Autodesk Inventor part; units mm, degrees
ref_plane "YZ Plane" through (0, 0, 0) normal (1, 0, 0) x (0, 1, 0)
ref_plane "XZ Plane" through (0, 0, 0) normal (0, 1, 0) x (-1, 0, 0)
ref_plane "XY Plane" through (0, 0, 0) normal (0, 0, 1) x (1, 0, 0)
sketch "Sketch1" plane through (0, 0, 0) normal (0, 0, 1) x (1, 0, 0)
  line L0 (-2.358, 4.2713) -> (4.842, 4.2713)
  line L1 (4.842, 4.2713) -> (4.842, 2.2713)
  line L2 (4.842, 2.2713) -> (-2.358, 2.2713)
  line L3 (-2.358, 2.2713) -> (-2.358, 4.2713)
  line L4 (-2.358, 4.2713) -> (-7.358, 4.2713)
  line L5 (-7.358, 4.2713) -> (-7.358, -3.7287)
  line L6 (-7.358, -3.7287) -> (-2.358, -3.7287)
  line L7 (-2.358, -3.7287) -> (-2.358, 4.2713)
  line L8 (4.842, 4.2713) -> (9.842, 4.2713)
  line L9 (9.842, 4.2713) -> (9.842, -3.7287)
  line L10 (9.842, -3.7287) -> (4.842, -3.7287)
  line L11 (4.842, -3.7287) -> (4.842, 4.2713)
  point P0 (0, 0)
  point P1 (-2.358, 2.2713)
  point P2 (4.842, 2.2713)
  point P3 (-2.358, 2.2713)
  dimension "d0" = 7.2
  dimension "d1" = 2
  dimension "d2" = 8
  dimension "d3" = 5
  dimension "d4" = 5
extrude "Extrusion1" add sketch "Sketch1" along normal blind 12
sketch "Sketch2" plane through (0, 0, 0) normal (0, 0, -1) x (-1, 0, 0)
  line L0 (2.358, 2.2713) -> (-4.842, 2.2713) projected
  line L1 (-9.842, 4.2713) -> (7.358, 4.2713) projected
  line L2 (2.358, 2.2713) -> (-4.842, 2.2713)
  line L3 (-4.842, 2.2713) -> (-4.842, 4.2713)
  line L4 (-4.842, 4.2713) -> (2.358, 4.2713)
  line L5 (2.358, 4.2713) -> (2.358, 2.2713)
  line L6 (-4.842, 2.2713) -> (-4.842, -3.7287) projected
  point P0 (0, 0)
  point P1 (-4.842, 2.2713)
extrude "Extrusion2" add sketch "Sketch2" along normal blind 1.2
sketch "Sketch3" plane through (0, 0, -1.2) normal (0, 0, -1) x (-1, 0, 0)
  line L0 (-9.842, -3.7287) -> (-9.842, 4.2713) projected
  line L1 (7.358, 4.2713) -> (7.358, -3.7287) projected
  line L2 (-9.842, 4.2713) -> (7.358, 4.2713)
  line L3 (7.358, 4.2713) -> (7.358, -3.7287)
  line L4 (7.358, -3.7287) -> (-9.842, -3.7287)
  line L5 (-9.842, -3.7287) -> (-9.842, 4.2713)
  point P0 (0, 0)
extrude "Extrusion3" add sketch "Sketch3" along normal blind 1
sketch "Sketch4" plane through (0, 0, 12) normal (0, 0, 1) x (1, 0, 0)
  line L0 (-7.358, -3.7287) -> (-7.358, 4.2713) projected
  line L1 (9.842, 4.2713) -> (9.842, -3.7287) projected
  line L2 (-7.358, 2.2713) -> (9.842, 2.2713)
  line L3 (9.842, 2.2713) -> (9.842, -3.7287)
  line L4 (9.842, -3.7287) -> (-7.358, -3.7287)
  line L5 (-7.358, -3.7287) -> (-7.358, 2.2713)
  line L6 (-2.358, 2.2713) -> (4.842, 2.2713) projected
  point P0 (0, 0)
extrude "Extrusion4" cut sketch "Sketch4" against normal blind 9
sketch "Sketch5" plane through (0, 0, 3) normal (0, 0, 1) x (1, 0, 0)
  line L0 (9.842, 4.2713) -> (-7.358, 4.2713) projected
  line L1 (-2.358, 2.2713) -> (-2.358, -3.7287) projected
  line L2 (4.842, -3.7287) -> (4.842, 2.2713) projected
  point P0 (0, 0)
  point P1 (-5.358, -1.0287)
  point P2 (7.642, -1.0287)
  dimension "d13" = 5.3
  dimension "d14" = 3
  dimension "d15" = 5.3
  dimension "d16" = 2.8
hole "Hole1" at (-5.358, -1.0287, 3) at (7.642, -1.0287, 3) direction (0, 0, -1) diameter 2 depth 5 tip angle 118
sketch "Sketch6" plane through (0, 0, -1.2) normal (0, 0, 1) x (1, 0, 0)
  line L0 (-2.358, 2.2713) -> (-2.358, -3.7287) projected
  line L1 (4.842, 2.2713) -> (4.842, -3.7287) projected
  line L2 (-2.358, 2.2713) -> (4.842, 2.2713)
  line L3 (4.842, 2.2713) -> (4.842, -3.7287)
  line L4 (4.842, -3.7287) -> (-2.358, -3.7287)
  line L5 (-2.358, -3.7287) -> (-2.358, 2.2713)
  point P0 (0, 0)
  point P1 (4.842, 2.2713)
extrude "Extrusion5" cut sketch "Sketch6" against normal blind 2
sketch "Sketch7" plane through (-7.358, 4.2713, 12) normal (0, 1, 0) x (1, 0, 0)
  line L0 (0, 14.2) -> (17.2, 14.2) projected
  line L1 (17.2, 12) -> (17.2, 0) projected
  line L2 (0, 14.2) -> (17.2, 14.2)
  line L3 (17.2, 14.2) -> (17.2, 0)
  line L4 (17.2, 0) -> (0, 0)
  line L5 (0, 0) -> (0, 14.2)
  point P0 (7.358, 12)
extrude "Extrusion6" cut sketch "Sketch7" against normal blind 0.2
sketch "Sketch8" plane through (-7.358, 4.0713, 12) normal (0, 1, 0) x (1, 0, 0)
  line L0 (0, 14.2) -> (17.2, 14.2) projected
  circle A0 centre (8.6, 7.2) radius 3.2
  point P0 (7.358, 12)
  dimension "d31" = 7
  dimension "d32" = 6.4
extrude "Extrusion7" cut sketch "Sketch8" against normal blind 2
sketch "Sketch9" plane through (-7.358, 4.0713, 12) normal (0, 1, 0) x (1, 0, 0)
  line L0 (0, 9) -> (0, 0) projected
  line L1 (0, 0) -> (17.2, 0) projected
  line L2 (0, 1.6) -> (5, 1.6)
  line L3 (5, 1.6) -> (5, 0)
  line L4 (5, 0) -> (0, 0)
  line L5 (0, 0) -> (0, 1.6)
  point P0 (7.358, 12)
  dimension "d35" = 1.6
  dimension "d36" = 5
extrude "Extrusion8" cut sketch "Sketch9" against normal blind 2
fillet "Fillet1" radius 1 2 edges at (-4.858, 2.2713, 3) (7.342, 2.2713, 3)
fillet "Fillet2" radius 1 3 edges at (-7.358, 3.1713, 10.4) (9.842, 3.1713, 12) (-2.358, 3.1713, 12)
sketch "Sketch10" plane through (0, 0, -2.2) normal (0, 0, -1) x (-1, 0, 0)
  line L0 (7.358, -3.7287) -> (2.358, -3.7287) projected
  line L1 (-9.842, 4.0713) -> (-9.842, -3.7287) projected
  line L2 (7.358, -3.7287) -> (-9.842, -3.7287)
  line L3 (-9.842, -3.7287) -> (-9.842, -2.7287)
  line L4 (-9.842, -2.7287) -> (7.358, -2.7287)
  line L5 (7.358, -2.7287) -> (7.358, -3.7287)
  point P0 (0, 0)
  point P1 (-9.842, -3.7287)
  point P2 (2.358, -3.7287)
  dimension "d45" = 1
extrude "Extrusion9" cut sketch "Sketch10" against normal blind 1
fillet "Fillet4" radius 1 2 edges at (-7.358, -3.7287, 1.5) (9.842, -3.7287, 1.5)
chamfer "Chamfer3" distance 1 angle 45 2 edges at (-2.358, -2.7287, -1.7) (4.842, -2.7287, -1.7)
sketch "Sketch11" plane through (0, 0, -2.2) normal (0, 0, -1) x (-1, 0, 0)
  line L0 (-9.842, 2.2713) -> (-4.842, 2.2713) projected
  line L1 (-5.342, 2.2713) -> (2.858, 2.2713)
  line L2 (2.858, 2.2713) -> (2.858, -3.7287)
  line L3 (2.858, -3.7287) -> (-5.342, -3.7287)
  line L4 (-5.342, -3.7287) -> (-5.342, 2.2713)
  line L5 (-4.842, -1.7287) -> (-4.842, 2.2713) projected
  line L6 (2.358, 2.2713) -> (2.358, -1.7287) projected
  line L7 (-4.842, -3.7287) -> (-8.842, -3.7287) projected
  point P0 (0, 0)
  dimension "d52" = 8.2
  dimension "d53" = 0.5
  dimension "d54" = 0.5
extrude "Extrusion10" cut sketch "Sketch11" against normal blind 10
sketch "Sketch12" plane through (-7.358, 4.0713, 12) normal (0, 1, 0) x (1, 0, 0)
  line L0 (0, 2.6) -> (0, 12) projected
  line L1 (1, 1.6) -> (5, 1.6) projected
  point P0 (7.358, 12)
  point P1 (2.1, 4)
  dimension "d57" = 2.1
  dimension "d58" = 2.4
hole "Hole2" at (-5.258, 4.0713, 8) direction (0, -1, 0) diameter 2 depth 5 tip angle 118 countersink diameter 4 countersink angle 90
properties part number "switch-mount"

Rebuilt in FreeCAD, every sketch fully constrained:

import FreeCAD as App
import Part
import Sketcher

V = App.Vector
Q = App.Units.Quantity


def edges_at(feature, points):
    """Names of the edges that pass closest to the given points."""
    edges = feature.Shape.Edges
    near = lambda p: min(range(len(edges)), key=lambda i: edges[i].distToShape(Part.Vertex(*p))[0])
    return sorted({f"Edge{near(p) + 1}" for p in points})

doc = App.newDocument("Part")
body = doc.addObject("PartDesign::Body", "Body")

# Sketch on XY plane
sketch1 = doc.addObject("Sketcher::SketchObject", "Sketch")
body.addObject(sketch1)
sketch1.AttachmentSupport = (doc.XY_Plane, [""])
sketch1.MapMode = "FlatFace"
sketch1.addGeometry(Part.LineSegment(V(-7, 4, 0), V(-7, -4, 0)), False)
sketch1.addGeometry(Part.LineSegment(V(-7, -4, 0), V(-2, -4, 0)), False)
sketch1.addGeometry(Part.LineSegment(V(-2, -4, 0), V(-2, 2, 0)), False)
sketch1.addGeometry(Part.LineSegment(V(-2, 2, 0), V(5, 2, 0)), False)
sketch1.addGeometry(Part.LineSegment(V(5, 2, 0), V(5, -4, 0)), False)
sketch1.addGeometry(Part.LineSegment(V(5, -4, 0), V(10, -4, 0)), False)
sketch1.addGeometry(Part.LineSegment(V(10, -4, 0), V(10, 4, 0)), False)
sketch1.addGeometry(Part.LineSegment(V(10, 4, 0), V(-7, 4, 0)), False)
sketch1.addConstraint(Sketcher.Constraint("Coincident", 0, 2, 1, 1))
sketch1.addConstraint(Sketcher.Constraint("Coincident", 1, 2, 2, 1))
sketch1.addConstraint(Sketcher.Constraint("Coincident", 2, 2, 3, 1))
sketch1.addConstraint(Sketcher.Constraint("Coincident", 3, 2, 4, 1))
sketch1.addConstraint(Sketcher.Constraint("Coincident", 4, 2, 5, 1))
sketch1.addConstraint(Sketcher.Constraint("Coincident", 5, 2, 6, 1))
sketch1.addConstraint(Sketcher.Constraint("Coincident", 6, 2, 7, 1))
sketch1.addConstraint(Sketcher.Constraint("Coincident", 7, 2, 0, 1))
sketch1.addConstraint(Sketcher.Constraint("Vertical", 0))
sketch1.addConstraint(Sketcher.Constraint("Horizontal", 1))
sketch1.addConstraint(Sketcher.Constraint("Vertical", 2))
sketch1.addConstraint(Sketcher.Constraint("Horizontal", 3))
sketch1.addConstraint(Sketcher.Constraint("Vertical", 4))
sketch1.addConstraint(Sketcher.Constraint("Horizontal", 5))
sketch1.addConstraint(Sketcher.Constraint("Vertical", 6))
sketch1.addConstraint(Sketcher.Constraint("Horizontal", 7))
sketch1.addConstraint(Sketcher.Constraint("Horizontal", 1, 2, 4, 2))
sketch1.addConstraint(Sketcher.Constraint("Equal", 1, 5))
sketch1.addConstraint(Sketcher.Constraint("DistanceX", 1, 1, 1, 2, Q("5 mm")))
sketch1.addConstraint(Sketcher.Constraint("DistanceY", 0, 2, 0, 1, Q("8 mm")))
sketch1.addConstraint(Sketcher.Constraint("DistanceX", 3, 1, 3, 2, Q("7.2 mm")))
sketch1.addConstraint(Sketcher.Constraint("DistanceY", 3, 2, 6, 2, Q("2 mm")))
sketch1.addConstraint(Sketcher.Constraint("DistanceX", 0, 2, -1, 1, Q("7.358 mm")))
sketch1.addConstraint(Sketcher.Constraint("DistanceY", 0, 2, -1, 1, Q("3.7287 mm")))
pad1 = doc.addObject("PartDesign::Pad", "Pad")
body.addObject(pad1)
pad1.Profile = sketch1
pad1.Length = 12

# Sketch on XY plane
sketch2 = doc.addObject("Sketcher::SketchObject", "Sketch001")
body.addObject(sketch2)
sketch2.AttachmentSupport = (doc.XY_Plane, [""])
sketch2.MapMode = "FlatFace"
sketch2.addGeometry(Part.LineSegment(V(4.8, 2.3, 0), V(-2.4, 2.3, 0)), False)
sketch2.addGeometry(Part.LineSegment(V(-2.4, 2.3, 0), V(-2.4, 4.3, 0)), False)
sketch2.addGeometry(Part.LineSegment(V(-2.4, 4.3, 0), V(4.8, 4.3, 0)), False)
sketch2.addGeometry(Part.LineSegment(V(4.8, 4.3, 0), V(4.8, 2.3, 0)), False)
sketch2.addConstraint(Sketcher.Constraint("Coincident", 0, 2, 1, 1))
sketch2.addConstraint(Sketcher.Constraint("Coincident", 1, 2, 2, 1))
sketch2.addConstraint(Sketcher.Constraint("Coincident", 2, 2, 3, 1))
sketch2.addConstraint(Sketcher.Constraint("Coincident", 3, 2, 0, 1))
sketch2.addConstraint(Sketcher.Constraint("Horizontal", 0))
sketch2.addConstraint(Sketcher.Constraint("Vertical", 1))
sketch2.addConstraint(Sketcher.Constraint("Horizontal", 2))
sketch2.addConstraint(Sketcher.Constraint("Vertical", 3))
sketch2.addConstraint(Sketcher.Constraint("DistanceY", 1, 1, 1, 2, Q("2 mm")))
sketch2.addConstraint(Sketcher.Constraint("DistanceX", 0, 2, 0, 1, Q("7.2 mm")))
sketch2.addConstraint(Sketcher.Constraint("DistanceX", 0, 2, -1, 1, Q("2.358 mm")))
sketch2.addConstraint(Sketcher.Constraint("DistanceY", -1, 1, 0, 2, Q("2.2713 mm")))
pad2 = doc.addObject("PartDesign::Pad", "Pad001")
body.addObject(pad2)
pad2.Profile = sketch2
pad2.Length = 1.2
pad2.Reversed = True

# Sketch on XY plane
sketch3 = doc.addObject("Sketcher::SketchObject", "Sketch002")
body.addObject(sketch3)
sketch3.AttachmentSupport = (doc.XY_Plane, [""])
sketch3.MapMode = "FlatFace"
sketch3.AttachmentOffset = App.Placement(V(0, 0, -1.2), App.Rotation())
sketch3.addGeometry(Part.LineSegment(V(10, 4, 0), V(10, -4, 0)), False)
sketch3.addGeometry(Part.LineSegment(V(10, -4, 0), V(-7, -4, 0)), False)
sketch3.addGeometry(Part.LineSegment(V(-7, -4, 0), V(-7, 4, 0)), False)
sketch3.addGeometry(Part.LineSegment(V(-7, 4, 0), V(10, 4, 0)), False)
sketch3.addConstraint(Sketcher.Constraint("Coincident", 0, 2, 1, 1))
sketch3.addConstraint(Sketcher.Constraint("Coincident", 1, 2, 2, 1))
sketch3.addConstraint(Sketcher.Constraint("Coincident", 2, 2, 3, 1))
sketch3.addConstraint(Sketcher.Constraint("Coincident", 3, 2, 0, 1))
sketch3.addConstraint(Sketcher.Constraint("Vertical", 0))
sketch3.addConstraint(Sketcher.Constraint("Horizontal", 1))
sketch3.addConstraint(Sketcher.Constraint("Vertical", 2))
sketch3.addConstraint(Sketcher.Constraint("Horizontal", 3))
sketch3.addConstraint(Sketcher.Constraint("DistanceY", 0, 2, 0, 1, Q("8 mm")))
sketch3.addConstraint(Sketcher.Constraint("DistanceX", 1, 2, 1, 1, Q("17.2 mm")))
sketch3.addConstraint(Sketcher.Constraint("DistanceX", -1, 1, 0, 2, Q("9.842 mm")))
sketch3.addConstraint(Sketcher.Constraint("DistanceY", 0, 2, -1, 1, Q("3.7287 mm")))
pad3 = doc.addObject("PartDesign::Pad", "Pad002")
body.addObject(pad3)
pad3.Profile = sketch3
pad3.Length = 1
pad3.Reversed = True

# Sketch on XY plane
sketch4 = doc.addObject("Sketcher::SketchObject", "Sketch003")
body.addObject(sketch4)
sketch4.AttachmentSupport = (doc.XY_Plane, [""])
sketch4.MapMode = "FlatFace"
sketch4.AttachmentOffset = App.Placement(V(0, 0, 12), App.Rotation())
sketch4.addGeometry(Part.LineSegment(V(-7, 2, 0), V(-7, -4, 0)), False)
sketch4.addGeometry(Part.LineSegment(V(-7, -4, 0), V(10, -4, 0)), False)
sketch4.addGeometry(Part.LineSegment(V(10, -4, 0), V(10, 2, 0)), False)
sketch4.addGeometry(Part.LineSegment(V(10, 2, 0), V(-7, 2, 0)), False)
sketch4.addConstraint(Sketcher.Constraint("Coincident", 0, 2, 1, 1))
sketch4.addConstraint(Sketcher.Constraint("Coincident", 1, 2, 2, 1))
sketch4.addConstraint(Sketcher.Constraint("Coincident", 2, 2, 3, 1))
sketch4.addConstraint(Sketcher.Constraint("Coincident", 3, 2, 0, 1))
sketch4.addConstraint(Sketcher.Constraint("Vertical", 0))
sketch4.addConstraint(Sketcher.Constraint("Horizontal", 1))
sketch4.addConstraint(Sketcher.Constraint("Vertical", 2))
sketch4.addConstraint(Sketcher.Constraint("Horizontal", 3))
sketch4.addConstraint(Sketcher.Constraint("DistanceY", 0, 2, 0, 1, Q("6 mm")))
sketch4.addConstraint(Sketcher.Constraint("DistanceX", 1, 1, 1, 2, Q("17.2 mm")))
sketch4.addConstraint(Sketcher.Constraint("DistanceX", 0, 2, -1, 1, Q("7.358 mm")))
sketch4.addConstraint(Sketcher.Constraint("DistanceY", 0, 2, -1, 1, Q("3.7287 mm")))
pocket1 = doc.addObject("PartDesign::Pocket", "Pocket")
body.addObject(pocket1)
pocket1.Profile = sketch4
pocket1.Length = 9

# Sketch on XY plane
sketch5 = doc.addObject("Sketcher::SketchObject", "Sketch004")
body.addObject(sketch5)
sketch5.AttachmentSupport = (doc.XY_Plane, [""])
sketch5.MapMode = "FlatFace"
sketch5.AttachmentOffset = App.Placement(V(0, 0, 3), App.Rotation())
sketch5.addGeometry(Part.Circle(V(-5.4, -1, 0), V(0, 0, 1), 1), False)
sketch5.addGeometry(Part.Circle(V(7.6, -1, 0), V(0, 0, 1), 1), False)
sketch5.addConstraint(Sketcher.Constraint("Equal", 0, 1))
sketch5.addConstraint(Sketcher.Constraint("Horizontal", 0, 3, 1, 3))
sketch5.addConstraint(Sketcher.Constraint("Diameter", 0, Q("2 mm")))
sketch5.addConstraint(Sketcher.Constraint("DistanceX", 0, 3, 1, 3, Q("13 mm")))
sketch5.addConstraint(Sketcher.Constraint("DistanceX", 0, 3, -1, 1, Q("5.358 mm")))
sketch5.addConstraint(Sketcher.Constraint("DistanceY", 0, 3, -1, 1, Q("1.0287 mm")))
doc.recompute()
hole = doc.addObject("PartDesign::Hole", "Hole")
body.addObject(hole)
hole.Profile = sketch5
hole.ThreadType = "None"
hole.Diameter = 2
hole.DepthType = "Dimension"
hole.Depth = 5
hole.DrillPoint = "Angled"
hole.DrillPointAngle = 118

# Sketch on XY plane
sketch6 = doc.addObject("Sketcher::SketchObject", "Sketch005")
body.addObject(sketch6)
sketch6.AttachmentSupport = (doc.XY_Plane, [""])
sketch6.MapMode = "FlatFace"
sketch6.AttachmentOffset = App.Placement(V(0, 0, -1.2), App.Rotation())
sketch6.addGeometry(Part.LineSegment(V(5, 2, 0), V(-2, 2, 0)), False)
sketch6.addGeometry(Part.LineSegment(V(-2, 2, 0), V(-2, -4, 0)), False)
sketch6.addGeometry(Part.LineSegment(V(-2, -4, 0), V(5, -4, 0)), False)
sketch6.addGeometry(Part.LineSegment(V(5, -4, 0), V(5, 2, 0)), False)
sketch6.addConstraint(Sketcher.Constraint("Coincident", 0, 2, 1, 1))
sketch6.addConstraint(Sketcher.Constraint("Coincident", 1, 2, 2, 1))
sketch6.addConstraint(Sketcher.Constraint("Coincident", 2, 2, 3, 1))
sketch6.addConstraint(Sketcher.Constraint("Coincident", 3, 2, 0, 1))
sketch6.addConstraint(Sketcher.Constraint("Horizontal", 0))
sketch6.addConstraint(Sketcher.Constraint("Vertical", 1))
sketch6.addConstraint(Sketcher.Constraint("Horizontal", 2))
sketch6.addConstraint(Sketcher.Constraint("Vertical", 3))
sketch6.addConstraint(Sketcher.Constraint("DistanceY", 1, 2, 1, 1, Q("6 mm")))
sketch6.addConstraint(Sketcher.Constraint("DistanceX", 0, 2, 0, 1, Q("7.2 mm")))
sketch6.addConstraint(Sketcher.Constraint("DistanceX", 0, 2, -1, 1, Q("2.358 mm")))
sketch6.addConstraint(Sketcher.Constraint("DistanceY", -1, 1, 0, 2, Q("2.2713 mm")))
pocket2 = doc.addObject("PartDesign::Pocket", "Pocket001")
body.addObject(pocket2)
pocket2.Profile = sketch6
pocket2.Length = 2

# Sketch on XZ plane
sketch7 = doc.addObject("Sketcher::SketchObject", "Sketch006")
body.addObject(sketch7)
sketch7.AttachmentSupport = (doc.XZ_Plane, [""])
sketch7.MapMode = "FlatFace"
sketch7.AttachmentOffset = App.Placement(V(0, 0, -4.2713), App.Rotation())
sketch7.addGeometry(Part.LineSegment(V(10, -2, 0), V(-7, -2, 0)), False)
sketch7.addGeometry(Part.LineSegment(V(-7, -2, 0), V(-7, 12, 0)), False)
sketch7.addGeometry(Part.LineSegment(V(-7, 12, 0), V(10, 12, 0)), False)
sketch7.addGeometry(Part.LineSegment(V(10, 12, 0), V(10, -2, 0)), False)
sketch7.addConstraint(Sketcher.Constraint("Coincident", 0, 2, 1, 1))
sketch7.addConstraint(Sketcher.Constraint("Coincident", 1, 2, 2, 1))
sketch7.addConstraint(Sketcher.Constraint("Coincident", 2, 2, 3, 1))
sketch7.addConstraint(Sketcher.Constraint("Coincident", 3, 2, 0, 1))
sketch7.addConstraint(Sketcher.Constraint("Horizontal", 0))
sketch7.addConstraint(Sketcher.Constraint("Vertical", 1))
sketch7.addConstraint(Sketcher.Constraint("Horizontal", 2))
sketch7.addConstraint(Sketcher.Constraint("Vertical", 3))
sketch7.addConstraint(Sketcher.Constraint("DistanceX", 0, 2, 0, 1, Q("17.2 mm")))
sketch7.addConstraint(Sketcher.Constraint("DistanceY", 1, 1, 1, 2, Q("14.2 mm")))
sketch7.addConstraint(Sketcher.Constraint("DistanceY", -1, 1, 1, 2, Q("12 mm")))
sketch7.addConstraint(Sketcher.Constraint("DistanceX", 0, 2, -1, 1, Q("7.358 mm")))
pocket3 = doc.addObject("PartDesign::Pocket", "Pocket002")
body.addObject(pocket3)
pocket3.Profile = sketch7
pocket3.Length = 0.2
pocket3.Reversed = True

# Sketch on XZ plane
sketch8 = doc.addObject("Sketcher::SketchObject", "Sketch007")
body.addObject(sketch8)
sketch8.AttachmentSupport = (doc.XZ_Plane, [""])
sketch8.MapMode = "FlatFace"
sketch8.AttachmentOffset = App.Placement(V(0, 0, -4.0713), App.Rotation())
sketch8.addGeometry(Part.Circle(V(1.2, 4.8, 0), V(0, 0, 1), 3.2), False)
sketch8.addConstraint(Sketcher.Constraint("Diameter", 0, Q("6.4 mm")))
sketch8.addConstraint(Sketcher.Constraint("DistanceY", -1, 1, 0, 3, Q("4.8 mm")))
sketch8.addConstraint(Sketcher.Constraint("DistanceX", -1, 1, 0, 3, Q("1.242 mm")))
pocket4 = doc.addObject("PartDesign::Pocket", "Pocket003")
body.addObject(pocket4)
pocket4.Profile = sketch8
pocket4.Length = 2
pocket4.Reversed = True

# Sketch on XZ plane
sketch9 = doc.addObject("Sketcher::SketchObject", "Sketch008")
body.addObject(sketch9)
sketch9.AttachmentSupport = (doc.XZ_Plane, [""])
sketch9.MapMode = "FlatFace"
sketch9.AttachmentOffset = App.Placement(V(0, 0, -4.0713), App.Rotation())
sketch9.addGeometry(Part.LineSegment(V(-2.4, 10.4, 0), V(-7.4, 10.4, 0)), False)
sketch9.addGeometry(Part.LineSegment(V(-7.4, 10.4, 0), V(-7.4, 12, 0)), False)
sketch9.addGeometry(Part.LineSegment(V(-7.4, 12, 0), V(-2.4, 12, 0)), False)
sketch9.addGeometry(Part.LineSegment(V(-2.4, 12, 0), V(-2.4, 10.4, 0)), False)
sketch9.addConstraint(Sketcher.Constraint("Coincident", 0, 2, 1, 1))
sketch9.addConstraint(Sketcher.Constraint("Coincident", 1, 2, 2, 1))
sketch9.addConstraint(Sketcher.Constraint("Coincident", 2, 2, 3, 1))
sketch9.addConstraint(Sketcher.Constraint("Coincident", 3, 2, 0, 1))
sketch9.addConstraint(Sketcher.Constraint("Horizontal", 0))
sketch9.addConstraint(Sketcher.Constraint("Vertical", 1))
sketch9.addConstraint(Sketcher.Constraint("Horizontal", 2))
sketch9.addConstraint(Sketcher.Constraint("Vertical", 3))
sketch9.addConstraint(Sketcher.Constraint("DistanceX", 0, 2, 0, 1, Q("5 mm")))
sketch9.addConstraint(Sketcher.Constraint("DistanceY", 1, 1, 1, 2, Q("1.6 mm")))
sketch9.addConstraint(Sketcher.Constraint("DistanceY", -1, 1, 1, 2, Q("12 mm")))
sketch9.addConstraint(Sketcher.Constraint("DistanceX", 0, 2, -1, 1, Q("7.358 mm")))
pocket5 = doc.addObject("PartDesign::Pocket", "Pocket004")
body.addObject(pocket5)
pocket5.Profile = sketch9
pocket5.Length = 2
pocket5.Reversed = True
doc.recompute()

fillet = doc.addObject("PartDesign::Fillet", "Fillet")
body.addObject(fillet)
fillet.Base = (pocket5, edges_at(pocket5, [(-4.858, 2.271, 3), (7.342, 2.271, 3)]))
fillet.Radius = 1
doc.recompute()

fillet2 = doc.addObject("PartDesign::Fillet", "Fillet001")
body.addObject(fillet2)
fillet2.Base = (fillet, edges_at(fillet, [(-7.358, 3.171, 10.4), (9.842, 3.171, 12), (-2.358, 3.171, 12)]))
fillet2.Radius = 1

# Sketch on XY plane
sketch10 = doc.addObject("Sketcher::SketchObject", "Sketch009")
body.addObject(sketch10)
sketch10.AttachmentSupport = (doc.XY_Plane, [""])
sketch10.MapMode = "FlatFace"
sketch10.AttachmentOffset = App.Placement(V(0, 0, -2.2), App.Rotation())
sketch10.addGeometry(Part.LineSegment(V(9.8, -3.7, 0), V(-7.4, -3.7, 0)), False)
sketch10.addGeometry(Part.LineSegment(V(-7.4, -3.7, 0), V(-7.4, -2.7, 0)), False)
sketch10.addGeometry(Part.LineSegment(V(-7.4, -2.7, 0), V(9.8, -2.7, 0)), False)
sketch10.addGeometry(Part.LineSegment(V(9.8, -2.7, 0), V(9.8, -3.7, 0)), False)
sketch10.addConstraint(Sketcher.Constraint("Coincident", 0, 2, 1, 1))
sketch10.addConstraint(Sketcher.Constraint("Coincident", 1, 2, 2, 1))
sketch10.addConstraint(Sketcher.Constraint("Coincident", 2, 2, 3, 1))
sketch10.addConstraint(Sketcher.Constraint("Coincident", 3, 2, 0, 1))
sketch10.addConstraint(Sketcher.Constraint("Horizontal", 0))
sketch10.addConstraint(Sketcher.Constraint("Vertical", 1))
sketch10.addConstraint(Sketcher.Constraint("Horizontal", 2))
sketch10.addConstraint(Sketcher.Constraint("Vertical", 3))
sketch10.addConstraint(Sketcher.Constraint("DistanceY", 1, 1, 1, 2, Q("1 mm")))
sketch10.addConstraint(Sketcher.Constraint("DistanceX", 0, 2, 0, 1, Q("17.2 mm")))
sketch10.addConstraint(Sketcher.Constraint("DistanceX", 0, 2, -1, 1, Q("7.358 mm")))
sketch10.addConstraint(Sketcher.Constraint("DistanceY", 0, 2, -1, 1, Q("3.7287 mm")))
pocket6 = doc.addObject("PartDesign::Pocket", "Pocket005")
body.addObject(pocket6)
pocket6.Profile = sketch10
pocket6.Length = 1
pocket6.Reversed = True
doc.recompute()

fillet3 = doc.addObject("PartDesign::Fillet", "Fillet002")
body.addObject(fillet3)
fillet3.Base = (pocket6, edges_at(pocket6, [(-7.358, -3.729, 1.5), (9.842, -3.729, 1.5)]))
fillet3.Radius = 1
doc.recompute()

chamfer = doc.addObject("PartDesign::Chamfer", "Chamfer")
body.addObject(chamfer)
chamfer.Base = (fillet3, edges_at(fillet3, [(-2.358, -2.729, -1.7), (4.842, -2.729, -1.7)]))
chamfer.Size = 1

# Sketch on XY plane
sketch11 = doc.addObject("Sketcher::SketchObject", "Sketch010")
body.addObject(sketch11)
sketch11.AttachmentSupport = (doc.XY_Plane, [""])
sketch11.MapMode = "FlatFace"
sketch11.AttachmentOffset = App.Placement(V(0, 0, -2.2), App.Rotation())
sketch11.addGeometry(Part.LineSegment(V(-3, 2, 0), V(5, 2, 0)), False)
sketch11.addGeometry(Part.LineSegment(V(5, 2, 0), V(5, -4, 0)), False)
sketch11.addGeometry(Part.LineSegment(V(5, -4, 0), V(-3, -4, 0)), False)
sketch11.addGeometry(Part.LineSegment(V(-3, -4, 0), V(-3, 2, 0)), False)
sketch11.addConstraint(Sketcher.Constraint("Coincident", 0, 2, 1, 1))
sketch11.addConstraint(Sketcher.Constraint("Coincident", 1, 2, 2, 1))
sketch11.addConstraint(Sketcher.Constraint("Coincident", 2, 2, 3, 1))
sketch11.addConstraint(Sketcher.Constraint("Coincident", 3, 2, 0, 1))
sketch11.addConstraint(Sketcher.Constraint("Horizontal", 0))
sketch11.addConstraint(Sketcher.Constraint("Vertical", 1))
sketch11.addConstraint(Sketcher.Constraint("Horizontal", 2))
sketch11.addConstraint(Sketcher.Constraint("Vertical", 3))
sketch11.addConstraint(Sketcher.Constraint("DistanceX", 0, 1, 0, 2, Q("8.2 mm")))
sketch11.addConstraint(Sketcher.Constraint("DistanceY", 1, 2, 1, 1, Q("6 mm")))
sketch11.addConstraint(Sketcher.Constraint("DistanceX", -1, 1, 0, 2, Q("5.342 mm")))
sketch11.addConstraint(Sketcher.Constraint("DistanceY", -1, 1, 0, 2, Q("2.2713 mm")))
pocket7 = doc.addObject("PartDesign::Pocket", "Pocket006")
body.addObject(pocket7)
pocket7.Profile = sketch11
pocket7.Length = 10
pocket7.Reversed = True

# Sketch on XZ plane
sketch12 = doc.addObject("Sketcher::SketchObject", "Sketch011")
body.addObject(sketch12)
sketch12.AttachmentSupport = (doc.XZ_Plane, [""])
sketch12.MapMode = "FlatFace"
sketch12.AttachmentOffset = App.Placement(V(0, 0, -4.0713), App.Rotation())
sketch12.addGeometry(Part.Circle(V(-5.3, 8, 0), V(0, 0, 1), 1), False)
sketch12.addConstraint(Sketcher.Constraint("Diameter", 0, Q("2 mm")))
sketch12.addConstraint(Sketcher.Constraint("DistanceY", -1, 1, 0, 3, Q("8 mm")))
sketch12.addConstraint(Sketcher.Constraint("DistanceX", 0, 3, -1, 1, Q("5.258 mm")))
doc.recompute()
hole2 = doc.addObject("PartDesign::Hole", "Hole001")
body.addObject(hole2)
hole2.Profile = sketch12
hole2.ThreadType = "None"
hole2.Diameter = 2
hole2.DepthType = "Dimension"
hole2.Depth = 5
hole2.DrillPoint = "Angled"
hole2.DrillPointAngle = 118
hole2.HoleCutType = "Countersink"
hole2.HoleCutDiameter = 4
hole2.HoleCutCountersinkAngle = 90
hole2.Reversed = True

doc.recompute()
